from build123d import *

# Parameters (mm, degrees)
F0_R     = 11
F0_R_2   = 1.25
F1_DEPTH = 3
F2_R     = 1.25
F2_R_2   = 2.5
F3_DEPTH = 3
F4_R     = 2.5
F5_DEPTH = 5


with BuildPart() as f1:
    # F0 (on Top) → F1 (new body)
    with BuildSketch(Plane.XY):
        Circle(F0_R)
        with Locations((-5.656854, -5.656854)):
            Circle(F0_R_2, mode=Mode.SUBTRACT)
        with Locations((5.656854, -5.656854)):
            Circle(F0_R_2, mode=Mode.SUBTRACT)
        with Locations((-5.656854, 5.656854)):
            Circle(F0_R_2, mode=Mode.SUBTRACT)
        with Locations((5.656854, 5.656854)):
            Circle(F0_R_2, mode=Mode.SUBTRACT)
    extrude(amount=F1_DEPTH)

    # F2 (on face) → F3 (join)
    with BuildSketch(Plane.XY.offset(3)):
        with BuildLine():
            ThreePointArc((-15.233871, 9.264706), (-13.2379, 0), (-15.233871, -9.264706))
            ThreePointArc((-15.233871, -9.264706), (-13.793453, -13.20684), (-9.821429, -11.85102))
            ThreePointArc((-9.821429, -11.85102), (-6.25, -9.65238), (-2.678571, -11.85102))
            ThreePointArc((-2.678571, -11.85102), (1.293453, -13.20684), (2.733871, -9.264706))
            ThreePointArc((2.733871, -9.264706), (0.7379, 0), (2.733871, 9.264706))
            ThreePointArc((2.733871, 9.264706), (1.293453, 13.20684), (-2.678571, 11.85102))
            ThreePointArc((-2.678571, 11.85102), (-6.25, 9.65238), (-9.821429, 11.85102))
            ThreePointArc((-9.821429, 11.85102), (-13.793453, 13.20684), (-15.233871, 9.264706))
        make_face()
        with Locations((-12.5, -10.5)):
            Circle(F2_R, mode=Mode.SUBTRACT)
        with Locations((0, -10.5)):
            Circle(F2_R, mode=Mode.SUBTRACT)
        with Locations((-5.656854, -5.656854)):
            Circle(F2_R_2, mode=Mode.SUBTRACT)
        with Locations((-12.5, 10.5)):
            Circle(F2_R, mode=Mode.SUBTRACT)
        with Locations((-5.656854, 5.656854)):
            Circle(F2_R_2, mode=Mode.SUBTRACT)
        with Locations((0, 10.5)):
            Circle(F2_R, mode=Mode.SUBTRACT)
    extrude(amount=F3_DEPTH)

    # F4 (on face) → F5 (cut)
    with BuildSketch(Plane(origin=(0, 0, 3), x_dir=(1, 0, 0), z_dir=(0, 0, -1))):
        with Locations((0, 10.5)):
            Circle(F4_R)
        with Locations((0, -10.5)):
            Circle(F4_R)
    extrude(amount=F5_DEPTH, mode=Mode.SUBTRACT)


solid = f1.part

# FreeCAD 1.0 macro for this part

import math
import FreeCAD as App
import Part
import Sketcher

V = App.Vector

doc = App.newDocument("Part")
body = doc.addObject("PartDesign::Body", "Body")

sketch1 = doc.addObject("Sketcher::SketchObject", "Sketch")
body.addObject(sketch1)
sketch1.AttachmentSupport = (doc.XY_Plane, [""])
sketch1.MapMode = "FlatFace"
sketch1.addGeometry([
    Part.Circle(V(0, 0, 0), V(0, 0, 1), 11),
    Part.Circle(V(-5.7, -5.7, 0), V(0, 0, 1), 1.2),
    Part.Circle(V(5.7, -5.7, 0), V(0, 0, 1), 1.2),
    Part.Circle(V(-5.7, 5.7, 0), V(0, 0, 1), 1.2),
    Part.Circle(V(5.7, 5.7, 0), V(0, 0, 1), 1.2),
], False)
sketch1.addConstraint([
    Sketcher.Constraint("Coincident", 0, 3, -1, 1),
    Sketcher.Constraint("Equal", 1, 2),
    Sketcher.Constraint("Equal", 2, 3),
    Sketcher.Constraint("Equal", 3, 4),
    Sketcher.Constraint("Symmetric", 2, 3, 3, 3, -1, 1),
    Sketcher.Constraint("Symmetric", 1, 3, 4, 3, -1, 1),
    Sketcher.Constraint("Symmetric", 1, 3, 2, 3, -2),
    Sketcher.Constraint("Diameter", 0, 22.0),
    Sketcher.Constraint("Diameter", 1, 2.5),
    Sketcher.Constraint("DistanceX", 1, 3, -1, 1, 5.656854),
    Sketcher.Constraint("DistanceY", 1, 3, -1, 1, 5.656854),
])
pad1 = doc.addObject("PartDesign::Pad", "Pad")
body.addObject(pad1)
pad1.Profile = sketch1
pad1.Length = 3

sketch2 = doc.addObject("Sketcher::SketchObject", "Sketch001")
body.addObject(sketch2)
sketch2.AttachmentSupport = (doc.XY_Plane, [""])
sketch2.MapMode = "FlatFace"
sketch2.AttachmentOffset = App.Placement(V(0, 0, 3), App.Rotation())
sketch2.addGeometry([
    Part.ArcOfCircle(Part.Circle(V(-35.7, 0, 0), V(0, 0, 1), 22.5), math.radians(-24), math.radians(24)),
    Part.ArcOfCircle(Part.Circle(V(-12.5, -10.5, 0), V(0, 0, 1), 3), math.radians(156), math.radians(333)),
    Part.ArcOfCircle(Part.Circle(V(-6.2, -13.7, 0), V(0, 0, 1), 4), math.radians(27), math.radians(153)),
    Part.ArcOfCircle(Part.Circle(V(0, -10.5, 0), V(0, 0, 1), 3), math.radians(-153), math.radians(24)),
    Part.ArcOfCircle(Part.Circle(V(23.2, 0, 0), V(0, 0, 1), 22.5), math.radians(156), math.radians(204)),
    Part.ArcOfCircle(Part.Circle(V(0, 10.5, 0), V(0, 0, 1), 3), math.radians(-24), math.radians(153)),
    Part.ArcOfCircle(Part.Circle(V(-6.2, 13.7, 0), V(0, 0, 1), 4), math.radians(-153), math.radians(-27)),
    Part.ArcOfCircle(Part.Circle(V(-12.5, 10.5, 0), V(0, 0, 1), 3), math.radians(27), math.radians(204)),
    Part.Circle(V(-12.5, -10.5, 0), V(0, 0, 1), 1.2),
    Part.Circle(V(0, -10.5, 0), V(0, 0, 1), 1.2),
    Part.Circle(V(-5.7, -5.7, 0), V(0, 0, 1), 2.5),
    Part.Circle(V(-12.5, 10.5, 0), V(0, 0, 1), 1.2),
    Part.Circle(V(-5.7, 5.7, 0), V(0, 0, 1), 2.5),
    Part.Circle(V(0, 10.5, 0), V(0, 0, 1), 1.2),
], False)
sketch2.addConstraint([
    Sketcher.Constraint("Tangent", 0, 1, 1, 1),
    Sketcher.Constraint("Tangent", 1, 2, 2, 2),
    Sketcher.Constraint("Tangent", 2, 1, 3, 1),
    Sketcher.Constraint("Tangent", 3, 2, 4, 2),
    Sketcher.Constraint("Tangent", 4, 1, 5, 1),
    Sketcher.Constraint("Tangent", 5, 2, 6, 2),
    Sketcher.Constraint("Tangent", 6, 1, 7, 1),
    Sketcher.Constraint("Tangent", 7, 2, 0, 2),
    Sketcher.Constraint("Coincident", 8, 3, 1, 3),
    Sketcher.Constraint("Coincident", 9, 3, 3, 3),
    Sketcher.Constraint("Coincident", 11, 3, 7, 3),
    Sketcher.Constraint("Coincident", 13, 3, 5, 3),
    Sketcher.Constraint("Equal", 1, 3),
    Sketcher.Constraint("Equal", 0, 4),
    Sketcher.Constraint("Equal", 3, 5),
    Sketcher.Constraint("Equal", 2, 6),
    Sketcher.Constraint("Equal", 5, 7),
    Sketcher.Constraint("Equal", 8, 9),
    Sketcher.Constraint("Equal", 9, 11),
    Sketcher.Constraint("Equal", 10, 12),
    Sketcher.Constraint("Equal", 11, 13),
    Sketcher.Constraint("Symmetric", 3, 3, 5, 3, -1, 1),
    Sketcher.Constraint("Symmetric", 2, 3, 6, 3, -1),
    Sketcher.Constraint("Symmetric", 10, 3, 12, 3, -1),
    Sketcher.Constraint("PointOnObject", 0, 3, -1),
    Sketcher.Constraint("Horizontal", 1, 3, 3, 3),
    Sketcher.Constraint("Diameter", 10, 5.0),
    Sketcher.Constraint("Radius", 1, 3.0),
    Sketcher.Constraint("Radius", 2, 4.000001),
    Sketcher.Constraint("Diameter", 8, 2.5),
    Sketcher.Constraint("DistanceY", 3, 3, 5, 3, 21.000001),
    Sketcher.Constraint("DistanceX", 1, 3, -1, 1, 12.500001),
    Sketcher.Constraint("Radius", 0, 22.499996),
    Sketcher.Constraint("DistanceX", 10, 3, -1, 1, 5.656854),
    Sketcher.Constraint("DistanceY", 10, 3, -1, 1, 5.656854),
])
pad2 = doc.addObject("PartDesign::Pad", "Pad001")
body.addObject(pad2)
pad2.Profile = sketch2
pad2.Length = 3

sketch3 = doc.addObject("Sketcher::SketchObject", "Sketch002")
body.addObject(sketch3)
sketch3.AttachmentSupport = (doc.XY_Plane, [""])
sketch3.MapMode = "FlatFace"
sketch3.AttachmentOffset = App.Placement(V(0, 0, 3), App.Rotation())
sketch3.addGeometry([
    Part.Circle(V(0, -10.5, 0), V(0, 0, 1), 2.5),
    Part.Circle(V(0, 10.5, 0), V(0, 0, 1), 2.5),
], False)
sketch3.addConstraint([
    Sketcher.Constraint("Equal", 0, 1),
    Sketcher.Constraint("Symmetric", 0, 3, 1, 3, -1, 1),
    Sketcher.Constraint("PointOnObject", 0, 3, -2),
    Sketcher.Constraint("Diameter", 0, 5.0),
    Sketcher.Constraint("DistanceY", 0, 3, 1, 3, 21.0),
])
pocket1 = doc.addObject("PartDesign::Pocket", "Pocket")
body.addObject(pocket1)
pocket1.Profile = sketch3
pocket1.Length = 5

doc.recompute()
